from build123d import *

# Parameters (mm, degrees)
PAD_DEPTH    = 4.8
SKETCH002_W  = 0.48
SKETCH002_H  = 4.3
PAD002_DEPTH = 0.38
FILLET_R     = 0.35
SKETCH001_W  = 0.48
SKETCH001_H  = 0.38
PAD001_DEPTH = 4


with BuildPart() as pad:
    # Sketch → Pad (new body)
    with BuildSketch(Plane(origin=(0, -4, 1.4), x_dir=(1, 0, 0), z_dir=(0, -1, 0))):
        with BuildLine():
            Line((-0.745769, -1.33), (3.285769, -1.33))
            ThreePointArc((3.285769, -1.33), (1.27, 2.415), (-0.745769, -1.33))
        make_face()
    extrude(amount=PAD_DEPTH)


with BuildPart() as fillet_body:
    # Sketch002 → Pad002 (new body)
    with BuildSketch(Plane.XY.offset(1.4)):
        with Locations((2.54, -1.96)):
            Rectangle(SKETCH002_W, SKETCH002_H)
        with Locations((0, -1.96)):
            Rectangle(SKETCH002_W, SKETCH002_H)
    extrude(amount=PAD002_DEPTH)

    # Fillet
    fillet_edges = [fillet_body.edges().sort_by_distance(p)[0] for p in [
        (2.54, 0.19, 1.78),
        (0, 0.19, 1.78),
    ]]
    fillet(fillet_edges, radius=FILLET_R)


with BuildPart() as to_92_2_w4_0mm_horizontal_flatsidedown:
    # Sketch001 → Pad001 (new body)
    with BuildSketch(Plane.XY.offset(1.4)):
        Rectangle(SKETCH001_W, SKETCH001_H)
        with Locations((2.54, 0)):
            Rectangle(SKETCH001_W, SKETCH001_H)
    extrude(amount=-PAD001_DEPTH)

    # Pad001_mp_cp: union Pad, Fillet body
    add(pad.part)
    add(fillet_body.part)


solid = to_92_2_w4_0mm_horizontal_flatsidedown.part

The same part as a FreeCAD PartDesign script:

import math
import FreeCAD as App
import Part
import Sketcher
from FreeCAD import Vector
Q = App.Units.Quantity


def edges_at(feature, points):
    """Names of the edges that pass closest to the given points."""
    edges = feature.Shape.Edges
    near = lambda p: min(range(len(edges)), key=lambda i: edges[i].distToShape(Part.Vertex(*p))[0])
    return sorted({f"Edge{near(p) + 1}" for p in points})


def add_polygon(sketch, points):
    """Adds a closed chain of lines whose ends are joined by coincident constraints."""
    first, n = sketch.GeometryCount, len(points)
    for a, b in zip(points, points[1:] + points[:1]):
        sketch.addGeometry(Part.LineSegment(App.Vector(*a, 0), App.Vector(*b, 0)), False)
    for i in range(n):
        sketch.addConstraint(Sketcher.Constraint("Coincident", first + i, 2, first + (i + 1) % n, 1))

doc = App.newDocument("Part")
body = doc.addObject("PartDesign::Body", "Body")

sketch1 = body.newObject("Sketcher::SketchObject", "Sketch")
sketch1.AttachmentSupport = (doc.getObject("XZ_Plane"), [""])
sketch1.MapMode = "FlatFace"
sketch1.AttachmentOffset = App.Placement(Vector(0, 0, 4), App.Rotation())
sketch1.addGeometry([
    Part.LineSegment(Vector(-0.7, 0.1, 0), Vector(3.3, 0.1, 0)),
    Part.ArcOfCircle(Part.Circle(Vector(1.3, 1.4, 0), Vector(0, 0, 1), 2.4), math.radians(-33), math.radians(213)),
], False)
sketch1.addConstraint([
    Sketcher.Constraint("Coincident", 0, 1, 1, 2),
    Sketcher.Constraint("Coincident", 1, 1, 0, 2),
    Sketcher.Constraint("Horizontal", 0),
    Sketcher.Constraint("Radius", 1, Q("2.415 mm")),
    Sketcher.Constraint("DistanceY", -1, 1, 1, 3, Q("1.4 mm")),
    Sketcher.Constraint("DistanceX", -1, 1, 1, 3, Q("1.27 mm")),
    Sketcher.Constraint("DistanceY", -1, 1, 0, 1, Q("0.07 mm")),
])
pad1 = body.newObject("PartDesign::Pad", "Pad")
pad1.Profile = sketch1
pad1.Length = 4.8
body2 = doc.addObject("PartDesign::Body", "Body001")
body2.AllowCompound = True

sketch2 = body2.newObject("Sketcher::SketchObject", "Sketch001")
sketch2.AttachmentSupport = (doc.getObject("XY_Plane001"), [""])
sketch2.MapMode = "FlatFace"
sketch2.AttachmentOffset = App.Placement(Vector(0, 0, 1.4), App.Rotation())
add_polygon(sketch2, [(2.3, 0.19), (2.3, -4.11), (2.78, -4.11), (2.78, 0.19)])
add_polygon(sketch2, [(-0.24, 0.19), (-0.24, -4.11), (0.24, -4.11), (0.24, 0.19)])
sketch2.addConstraint([
    Sketcher.Constraint("Vertical", 0),
    Sketcher.Constraint("Horizontal", 1),
    Sketcher.Constraint("Vertical", 2),
    Sketcher.Constraint("Horizontal", 3),
    Sketcher.Constraint("Vertical", 4),
    Sketcher.Constraint("Horizontal", 5),
    Sketcher.Constraint("Vertical", 6),
    Sketcher.Constraint("Horizontal", 7),
    Sketcher.Constraint("Horizontal", 1, 2, 4, 2),
    Sketcher.Constraint("Horizontal", 3, 2, 6, 2),
    Sketcher.Constraint("Equal", 3, 5),
    Sketcher.Constraint("DistanceY", 0, 2, 0, 1, Q("4.3 mm")),
    Sketcher.Constraint("DistanceX", 1, 1, 1, 2, Q("0.48 mm")),
    Sketcher.Constraint("DistanceX", -1, 1, 0, 2, Q("2.3 mm")),
    Sketcher.Constraint("DistanceY", 0, 2, -1, 1, Q("4.11 mm")),
    Sketcher.Constraint("DistanceX", 4, 2, -1, 1, Q("0.24 mm")),
])
pad2 = body2.newObject("PartDesign::Pad", "Pad001")
pad2.Profile = sketch2
pad2.Length = 0.38
doc.recompute()

fillet = body2.newObject("PartDesign::Fillet", "Fillet")
fillet.Base = (pad2, edges_at(pad2, [(2.54, 0.19, 1.78), (0, 0.19, 1.78)]))
fillet.Radius = 0.35
body3 = doc.addObject("PartDesign::Body", "Body002")
body3.AllowCompound = True

sketch3 = body3.newObject("Sketcher::SketchObject", "Sketch002")
sketch3.AttachmentSupport = (doc.getObject("XY_Plane002"), [""])
sketch3.MapMode = "FlatFace"
sketch3.AttachmentOffset = App.Placement(Vector(0, 0, 1.4), App.Rotation())
add_polygon(sketch3, [(-0.24, 0.19), (-0.24, -0.19), (0.24, -0.19), (0.24, 0.19)])
add_polygon(sketch3, [(2.3, 0.19), (2.3, -0.19), (2.78, -0.19), (2.78, 0.19)])
sketch3.addConstraint([
    Sketcher.Constraint("Vertical", 0),
    Sketcher.Constraint("Horizontal", 1),
    Sketcher.Constraint("Vertical", 2),
    Sketcher.Constraint("Horizontal", 3),
    Sketcher.Constraint("Vertical", 4),
    Sketcher.Constraint("Horizontal", 5),
    Sketcher.Constraint("Vertical", 6),
    Sketcher.Constraint("Horizontal", 7),
    Sketcher.Constraint("Symmetric", 0, 2, 2, 2, -1, 1),
    Sketcher.Constraint("Horizontal", 1, 2, 4, 2),
    Sketcher.Constraint("Horizontal", 3, 2, 6, 2),
    Sketcher.Constraint("Equal", 3, 5),
    Sketcher.Constraint("DistanceX", 1, 1, 1, 2, Q("0.48 mm")),
    Sketcher.Constraint("DistanceY", 0, 2, 0, 1, Q("0.38 mm")),
    Sketcher.Constraint("DistanceX", -1, 1, 4, 2, Q("2.3 mm")),
])
pad3 = body3.newObject("PartDesign::Pad", "Pad002")
pad3.Profile = sketch3
pad3.Length = 4
pad3.Reversed = True
doc.recompute()

boolean = body3.newObject("PartDesign::Boolean", "Boolean")
boolean.Type = "Fuse"
boolean.addObjects([body])
doc.recompute()

boolean2 = body3.newObject("PartDesign::Boolean", "Boolean001")
boolean2.Type = "Fuse"
boolean2.addObjects([body2])

doc.recompute()
